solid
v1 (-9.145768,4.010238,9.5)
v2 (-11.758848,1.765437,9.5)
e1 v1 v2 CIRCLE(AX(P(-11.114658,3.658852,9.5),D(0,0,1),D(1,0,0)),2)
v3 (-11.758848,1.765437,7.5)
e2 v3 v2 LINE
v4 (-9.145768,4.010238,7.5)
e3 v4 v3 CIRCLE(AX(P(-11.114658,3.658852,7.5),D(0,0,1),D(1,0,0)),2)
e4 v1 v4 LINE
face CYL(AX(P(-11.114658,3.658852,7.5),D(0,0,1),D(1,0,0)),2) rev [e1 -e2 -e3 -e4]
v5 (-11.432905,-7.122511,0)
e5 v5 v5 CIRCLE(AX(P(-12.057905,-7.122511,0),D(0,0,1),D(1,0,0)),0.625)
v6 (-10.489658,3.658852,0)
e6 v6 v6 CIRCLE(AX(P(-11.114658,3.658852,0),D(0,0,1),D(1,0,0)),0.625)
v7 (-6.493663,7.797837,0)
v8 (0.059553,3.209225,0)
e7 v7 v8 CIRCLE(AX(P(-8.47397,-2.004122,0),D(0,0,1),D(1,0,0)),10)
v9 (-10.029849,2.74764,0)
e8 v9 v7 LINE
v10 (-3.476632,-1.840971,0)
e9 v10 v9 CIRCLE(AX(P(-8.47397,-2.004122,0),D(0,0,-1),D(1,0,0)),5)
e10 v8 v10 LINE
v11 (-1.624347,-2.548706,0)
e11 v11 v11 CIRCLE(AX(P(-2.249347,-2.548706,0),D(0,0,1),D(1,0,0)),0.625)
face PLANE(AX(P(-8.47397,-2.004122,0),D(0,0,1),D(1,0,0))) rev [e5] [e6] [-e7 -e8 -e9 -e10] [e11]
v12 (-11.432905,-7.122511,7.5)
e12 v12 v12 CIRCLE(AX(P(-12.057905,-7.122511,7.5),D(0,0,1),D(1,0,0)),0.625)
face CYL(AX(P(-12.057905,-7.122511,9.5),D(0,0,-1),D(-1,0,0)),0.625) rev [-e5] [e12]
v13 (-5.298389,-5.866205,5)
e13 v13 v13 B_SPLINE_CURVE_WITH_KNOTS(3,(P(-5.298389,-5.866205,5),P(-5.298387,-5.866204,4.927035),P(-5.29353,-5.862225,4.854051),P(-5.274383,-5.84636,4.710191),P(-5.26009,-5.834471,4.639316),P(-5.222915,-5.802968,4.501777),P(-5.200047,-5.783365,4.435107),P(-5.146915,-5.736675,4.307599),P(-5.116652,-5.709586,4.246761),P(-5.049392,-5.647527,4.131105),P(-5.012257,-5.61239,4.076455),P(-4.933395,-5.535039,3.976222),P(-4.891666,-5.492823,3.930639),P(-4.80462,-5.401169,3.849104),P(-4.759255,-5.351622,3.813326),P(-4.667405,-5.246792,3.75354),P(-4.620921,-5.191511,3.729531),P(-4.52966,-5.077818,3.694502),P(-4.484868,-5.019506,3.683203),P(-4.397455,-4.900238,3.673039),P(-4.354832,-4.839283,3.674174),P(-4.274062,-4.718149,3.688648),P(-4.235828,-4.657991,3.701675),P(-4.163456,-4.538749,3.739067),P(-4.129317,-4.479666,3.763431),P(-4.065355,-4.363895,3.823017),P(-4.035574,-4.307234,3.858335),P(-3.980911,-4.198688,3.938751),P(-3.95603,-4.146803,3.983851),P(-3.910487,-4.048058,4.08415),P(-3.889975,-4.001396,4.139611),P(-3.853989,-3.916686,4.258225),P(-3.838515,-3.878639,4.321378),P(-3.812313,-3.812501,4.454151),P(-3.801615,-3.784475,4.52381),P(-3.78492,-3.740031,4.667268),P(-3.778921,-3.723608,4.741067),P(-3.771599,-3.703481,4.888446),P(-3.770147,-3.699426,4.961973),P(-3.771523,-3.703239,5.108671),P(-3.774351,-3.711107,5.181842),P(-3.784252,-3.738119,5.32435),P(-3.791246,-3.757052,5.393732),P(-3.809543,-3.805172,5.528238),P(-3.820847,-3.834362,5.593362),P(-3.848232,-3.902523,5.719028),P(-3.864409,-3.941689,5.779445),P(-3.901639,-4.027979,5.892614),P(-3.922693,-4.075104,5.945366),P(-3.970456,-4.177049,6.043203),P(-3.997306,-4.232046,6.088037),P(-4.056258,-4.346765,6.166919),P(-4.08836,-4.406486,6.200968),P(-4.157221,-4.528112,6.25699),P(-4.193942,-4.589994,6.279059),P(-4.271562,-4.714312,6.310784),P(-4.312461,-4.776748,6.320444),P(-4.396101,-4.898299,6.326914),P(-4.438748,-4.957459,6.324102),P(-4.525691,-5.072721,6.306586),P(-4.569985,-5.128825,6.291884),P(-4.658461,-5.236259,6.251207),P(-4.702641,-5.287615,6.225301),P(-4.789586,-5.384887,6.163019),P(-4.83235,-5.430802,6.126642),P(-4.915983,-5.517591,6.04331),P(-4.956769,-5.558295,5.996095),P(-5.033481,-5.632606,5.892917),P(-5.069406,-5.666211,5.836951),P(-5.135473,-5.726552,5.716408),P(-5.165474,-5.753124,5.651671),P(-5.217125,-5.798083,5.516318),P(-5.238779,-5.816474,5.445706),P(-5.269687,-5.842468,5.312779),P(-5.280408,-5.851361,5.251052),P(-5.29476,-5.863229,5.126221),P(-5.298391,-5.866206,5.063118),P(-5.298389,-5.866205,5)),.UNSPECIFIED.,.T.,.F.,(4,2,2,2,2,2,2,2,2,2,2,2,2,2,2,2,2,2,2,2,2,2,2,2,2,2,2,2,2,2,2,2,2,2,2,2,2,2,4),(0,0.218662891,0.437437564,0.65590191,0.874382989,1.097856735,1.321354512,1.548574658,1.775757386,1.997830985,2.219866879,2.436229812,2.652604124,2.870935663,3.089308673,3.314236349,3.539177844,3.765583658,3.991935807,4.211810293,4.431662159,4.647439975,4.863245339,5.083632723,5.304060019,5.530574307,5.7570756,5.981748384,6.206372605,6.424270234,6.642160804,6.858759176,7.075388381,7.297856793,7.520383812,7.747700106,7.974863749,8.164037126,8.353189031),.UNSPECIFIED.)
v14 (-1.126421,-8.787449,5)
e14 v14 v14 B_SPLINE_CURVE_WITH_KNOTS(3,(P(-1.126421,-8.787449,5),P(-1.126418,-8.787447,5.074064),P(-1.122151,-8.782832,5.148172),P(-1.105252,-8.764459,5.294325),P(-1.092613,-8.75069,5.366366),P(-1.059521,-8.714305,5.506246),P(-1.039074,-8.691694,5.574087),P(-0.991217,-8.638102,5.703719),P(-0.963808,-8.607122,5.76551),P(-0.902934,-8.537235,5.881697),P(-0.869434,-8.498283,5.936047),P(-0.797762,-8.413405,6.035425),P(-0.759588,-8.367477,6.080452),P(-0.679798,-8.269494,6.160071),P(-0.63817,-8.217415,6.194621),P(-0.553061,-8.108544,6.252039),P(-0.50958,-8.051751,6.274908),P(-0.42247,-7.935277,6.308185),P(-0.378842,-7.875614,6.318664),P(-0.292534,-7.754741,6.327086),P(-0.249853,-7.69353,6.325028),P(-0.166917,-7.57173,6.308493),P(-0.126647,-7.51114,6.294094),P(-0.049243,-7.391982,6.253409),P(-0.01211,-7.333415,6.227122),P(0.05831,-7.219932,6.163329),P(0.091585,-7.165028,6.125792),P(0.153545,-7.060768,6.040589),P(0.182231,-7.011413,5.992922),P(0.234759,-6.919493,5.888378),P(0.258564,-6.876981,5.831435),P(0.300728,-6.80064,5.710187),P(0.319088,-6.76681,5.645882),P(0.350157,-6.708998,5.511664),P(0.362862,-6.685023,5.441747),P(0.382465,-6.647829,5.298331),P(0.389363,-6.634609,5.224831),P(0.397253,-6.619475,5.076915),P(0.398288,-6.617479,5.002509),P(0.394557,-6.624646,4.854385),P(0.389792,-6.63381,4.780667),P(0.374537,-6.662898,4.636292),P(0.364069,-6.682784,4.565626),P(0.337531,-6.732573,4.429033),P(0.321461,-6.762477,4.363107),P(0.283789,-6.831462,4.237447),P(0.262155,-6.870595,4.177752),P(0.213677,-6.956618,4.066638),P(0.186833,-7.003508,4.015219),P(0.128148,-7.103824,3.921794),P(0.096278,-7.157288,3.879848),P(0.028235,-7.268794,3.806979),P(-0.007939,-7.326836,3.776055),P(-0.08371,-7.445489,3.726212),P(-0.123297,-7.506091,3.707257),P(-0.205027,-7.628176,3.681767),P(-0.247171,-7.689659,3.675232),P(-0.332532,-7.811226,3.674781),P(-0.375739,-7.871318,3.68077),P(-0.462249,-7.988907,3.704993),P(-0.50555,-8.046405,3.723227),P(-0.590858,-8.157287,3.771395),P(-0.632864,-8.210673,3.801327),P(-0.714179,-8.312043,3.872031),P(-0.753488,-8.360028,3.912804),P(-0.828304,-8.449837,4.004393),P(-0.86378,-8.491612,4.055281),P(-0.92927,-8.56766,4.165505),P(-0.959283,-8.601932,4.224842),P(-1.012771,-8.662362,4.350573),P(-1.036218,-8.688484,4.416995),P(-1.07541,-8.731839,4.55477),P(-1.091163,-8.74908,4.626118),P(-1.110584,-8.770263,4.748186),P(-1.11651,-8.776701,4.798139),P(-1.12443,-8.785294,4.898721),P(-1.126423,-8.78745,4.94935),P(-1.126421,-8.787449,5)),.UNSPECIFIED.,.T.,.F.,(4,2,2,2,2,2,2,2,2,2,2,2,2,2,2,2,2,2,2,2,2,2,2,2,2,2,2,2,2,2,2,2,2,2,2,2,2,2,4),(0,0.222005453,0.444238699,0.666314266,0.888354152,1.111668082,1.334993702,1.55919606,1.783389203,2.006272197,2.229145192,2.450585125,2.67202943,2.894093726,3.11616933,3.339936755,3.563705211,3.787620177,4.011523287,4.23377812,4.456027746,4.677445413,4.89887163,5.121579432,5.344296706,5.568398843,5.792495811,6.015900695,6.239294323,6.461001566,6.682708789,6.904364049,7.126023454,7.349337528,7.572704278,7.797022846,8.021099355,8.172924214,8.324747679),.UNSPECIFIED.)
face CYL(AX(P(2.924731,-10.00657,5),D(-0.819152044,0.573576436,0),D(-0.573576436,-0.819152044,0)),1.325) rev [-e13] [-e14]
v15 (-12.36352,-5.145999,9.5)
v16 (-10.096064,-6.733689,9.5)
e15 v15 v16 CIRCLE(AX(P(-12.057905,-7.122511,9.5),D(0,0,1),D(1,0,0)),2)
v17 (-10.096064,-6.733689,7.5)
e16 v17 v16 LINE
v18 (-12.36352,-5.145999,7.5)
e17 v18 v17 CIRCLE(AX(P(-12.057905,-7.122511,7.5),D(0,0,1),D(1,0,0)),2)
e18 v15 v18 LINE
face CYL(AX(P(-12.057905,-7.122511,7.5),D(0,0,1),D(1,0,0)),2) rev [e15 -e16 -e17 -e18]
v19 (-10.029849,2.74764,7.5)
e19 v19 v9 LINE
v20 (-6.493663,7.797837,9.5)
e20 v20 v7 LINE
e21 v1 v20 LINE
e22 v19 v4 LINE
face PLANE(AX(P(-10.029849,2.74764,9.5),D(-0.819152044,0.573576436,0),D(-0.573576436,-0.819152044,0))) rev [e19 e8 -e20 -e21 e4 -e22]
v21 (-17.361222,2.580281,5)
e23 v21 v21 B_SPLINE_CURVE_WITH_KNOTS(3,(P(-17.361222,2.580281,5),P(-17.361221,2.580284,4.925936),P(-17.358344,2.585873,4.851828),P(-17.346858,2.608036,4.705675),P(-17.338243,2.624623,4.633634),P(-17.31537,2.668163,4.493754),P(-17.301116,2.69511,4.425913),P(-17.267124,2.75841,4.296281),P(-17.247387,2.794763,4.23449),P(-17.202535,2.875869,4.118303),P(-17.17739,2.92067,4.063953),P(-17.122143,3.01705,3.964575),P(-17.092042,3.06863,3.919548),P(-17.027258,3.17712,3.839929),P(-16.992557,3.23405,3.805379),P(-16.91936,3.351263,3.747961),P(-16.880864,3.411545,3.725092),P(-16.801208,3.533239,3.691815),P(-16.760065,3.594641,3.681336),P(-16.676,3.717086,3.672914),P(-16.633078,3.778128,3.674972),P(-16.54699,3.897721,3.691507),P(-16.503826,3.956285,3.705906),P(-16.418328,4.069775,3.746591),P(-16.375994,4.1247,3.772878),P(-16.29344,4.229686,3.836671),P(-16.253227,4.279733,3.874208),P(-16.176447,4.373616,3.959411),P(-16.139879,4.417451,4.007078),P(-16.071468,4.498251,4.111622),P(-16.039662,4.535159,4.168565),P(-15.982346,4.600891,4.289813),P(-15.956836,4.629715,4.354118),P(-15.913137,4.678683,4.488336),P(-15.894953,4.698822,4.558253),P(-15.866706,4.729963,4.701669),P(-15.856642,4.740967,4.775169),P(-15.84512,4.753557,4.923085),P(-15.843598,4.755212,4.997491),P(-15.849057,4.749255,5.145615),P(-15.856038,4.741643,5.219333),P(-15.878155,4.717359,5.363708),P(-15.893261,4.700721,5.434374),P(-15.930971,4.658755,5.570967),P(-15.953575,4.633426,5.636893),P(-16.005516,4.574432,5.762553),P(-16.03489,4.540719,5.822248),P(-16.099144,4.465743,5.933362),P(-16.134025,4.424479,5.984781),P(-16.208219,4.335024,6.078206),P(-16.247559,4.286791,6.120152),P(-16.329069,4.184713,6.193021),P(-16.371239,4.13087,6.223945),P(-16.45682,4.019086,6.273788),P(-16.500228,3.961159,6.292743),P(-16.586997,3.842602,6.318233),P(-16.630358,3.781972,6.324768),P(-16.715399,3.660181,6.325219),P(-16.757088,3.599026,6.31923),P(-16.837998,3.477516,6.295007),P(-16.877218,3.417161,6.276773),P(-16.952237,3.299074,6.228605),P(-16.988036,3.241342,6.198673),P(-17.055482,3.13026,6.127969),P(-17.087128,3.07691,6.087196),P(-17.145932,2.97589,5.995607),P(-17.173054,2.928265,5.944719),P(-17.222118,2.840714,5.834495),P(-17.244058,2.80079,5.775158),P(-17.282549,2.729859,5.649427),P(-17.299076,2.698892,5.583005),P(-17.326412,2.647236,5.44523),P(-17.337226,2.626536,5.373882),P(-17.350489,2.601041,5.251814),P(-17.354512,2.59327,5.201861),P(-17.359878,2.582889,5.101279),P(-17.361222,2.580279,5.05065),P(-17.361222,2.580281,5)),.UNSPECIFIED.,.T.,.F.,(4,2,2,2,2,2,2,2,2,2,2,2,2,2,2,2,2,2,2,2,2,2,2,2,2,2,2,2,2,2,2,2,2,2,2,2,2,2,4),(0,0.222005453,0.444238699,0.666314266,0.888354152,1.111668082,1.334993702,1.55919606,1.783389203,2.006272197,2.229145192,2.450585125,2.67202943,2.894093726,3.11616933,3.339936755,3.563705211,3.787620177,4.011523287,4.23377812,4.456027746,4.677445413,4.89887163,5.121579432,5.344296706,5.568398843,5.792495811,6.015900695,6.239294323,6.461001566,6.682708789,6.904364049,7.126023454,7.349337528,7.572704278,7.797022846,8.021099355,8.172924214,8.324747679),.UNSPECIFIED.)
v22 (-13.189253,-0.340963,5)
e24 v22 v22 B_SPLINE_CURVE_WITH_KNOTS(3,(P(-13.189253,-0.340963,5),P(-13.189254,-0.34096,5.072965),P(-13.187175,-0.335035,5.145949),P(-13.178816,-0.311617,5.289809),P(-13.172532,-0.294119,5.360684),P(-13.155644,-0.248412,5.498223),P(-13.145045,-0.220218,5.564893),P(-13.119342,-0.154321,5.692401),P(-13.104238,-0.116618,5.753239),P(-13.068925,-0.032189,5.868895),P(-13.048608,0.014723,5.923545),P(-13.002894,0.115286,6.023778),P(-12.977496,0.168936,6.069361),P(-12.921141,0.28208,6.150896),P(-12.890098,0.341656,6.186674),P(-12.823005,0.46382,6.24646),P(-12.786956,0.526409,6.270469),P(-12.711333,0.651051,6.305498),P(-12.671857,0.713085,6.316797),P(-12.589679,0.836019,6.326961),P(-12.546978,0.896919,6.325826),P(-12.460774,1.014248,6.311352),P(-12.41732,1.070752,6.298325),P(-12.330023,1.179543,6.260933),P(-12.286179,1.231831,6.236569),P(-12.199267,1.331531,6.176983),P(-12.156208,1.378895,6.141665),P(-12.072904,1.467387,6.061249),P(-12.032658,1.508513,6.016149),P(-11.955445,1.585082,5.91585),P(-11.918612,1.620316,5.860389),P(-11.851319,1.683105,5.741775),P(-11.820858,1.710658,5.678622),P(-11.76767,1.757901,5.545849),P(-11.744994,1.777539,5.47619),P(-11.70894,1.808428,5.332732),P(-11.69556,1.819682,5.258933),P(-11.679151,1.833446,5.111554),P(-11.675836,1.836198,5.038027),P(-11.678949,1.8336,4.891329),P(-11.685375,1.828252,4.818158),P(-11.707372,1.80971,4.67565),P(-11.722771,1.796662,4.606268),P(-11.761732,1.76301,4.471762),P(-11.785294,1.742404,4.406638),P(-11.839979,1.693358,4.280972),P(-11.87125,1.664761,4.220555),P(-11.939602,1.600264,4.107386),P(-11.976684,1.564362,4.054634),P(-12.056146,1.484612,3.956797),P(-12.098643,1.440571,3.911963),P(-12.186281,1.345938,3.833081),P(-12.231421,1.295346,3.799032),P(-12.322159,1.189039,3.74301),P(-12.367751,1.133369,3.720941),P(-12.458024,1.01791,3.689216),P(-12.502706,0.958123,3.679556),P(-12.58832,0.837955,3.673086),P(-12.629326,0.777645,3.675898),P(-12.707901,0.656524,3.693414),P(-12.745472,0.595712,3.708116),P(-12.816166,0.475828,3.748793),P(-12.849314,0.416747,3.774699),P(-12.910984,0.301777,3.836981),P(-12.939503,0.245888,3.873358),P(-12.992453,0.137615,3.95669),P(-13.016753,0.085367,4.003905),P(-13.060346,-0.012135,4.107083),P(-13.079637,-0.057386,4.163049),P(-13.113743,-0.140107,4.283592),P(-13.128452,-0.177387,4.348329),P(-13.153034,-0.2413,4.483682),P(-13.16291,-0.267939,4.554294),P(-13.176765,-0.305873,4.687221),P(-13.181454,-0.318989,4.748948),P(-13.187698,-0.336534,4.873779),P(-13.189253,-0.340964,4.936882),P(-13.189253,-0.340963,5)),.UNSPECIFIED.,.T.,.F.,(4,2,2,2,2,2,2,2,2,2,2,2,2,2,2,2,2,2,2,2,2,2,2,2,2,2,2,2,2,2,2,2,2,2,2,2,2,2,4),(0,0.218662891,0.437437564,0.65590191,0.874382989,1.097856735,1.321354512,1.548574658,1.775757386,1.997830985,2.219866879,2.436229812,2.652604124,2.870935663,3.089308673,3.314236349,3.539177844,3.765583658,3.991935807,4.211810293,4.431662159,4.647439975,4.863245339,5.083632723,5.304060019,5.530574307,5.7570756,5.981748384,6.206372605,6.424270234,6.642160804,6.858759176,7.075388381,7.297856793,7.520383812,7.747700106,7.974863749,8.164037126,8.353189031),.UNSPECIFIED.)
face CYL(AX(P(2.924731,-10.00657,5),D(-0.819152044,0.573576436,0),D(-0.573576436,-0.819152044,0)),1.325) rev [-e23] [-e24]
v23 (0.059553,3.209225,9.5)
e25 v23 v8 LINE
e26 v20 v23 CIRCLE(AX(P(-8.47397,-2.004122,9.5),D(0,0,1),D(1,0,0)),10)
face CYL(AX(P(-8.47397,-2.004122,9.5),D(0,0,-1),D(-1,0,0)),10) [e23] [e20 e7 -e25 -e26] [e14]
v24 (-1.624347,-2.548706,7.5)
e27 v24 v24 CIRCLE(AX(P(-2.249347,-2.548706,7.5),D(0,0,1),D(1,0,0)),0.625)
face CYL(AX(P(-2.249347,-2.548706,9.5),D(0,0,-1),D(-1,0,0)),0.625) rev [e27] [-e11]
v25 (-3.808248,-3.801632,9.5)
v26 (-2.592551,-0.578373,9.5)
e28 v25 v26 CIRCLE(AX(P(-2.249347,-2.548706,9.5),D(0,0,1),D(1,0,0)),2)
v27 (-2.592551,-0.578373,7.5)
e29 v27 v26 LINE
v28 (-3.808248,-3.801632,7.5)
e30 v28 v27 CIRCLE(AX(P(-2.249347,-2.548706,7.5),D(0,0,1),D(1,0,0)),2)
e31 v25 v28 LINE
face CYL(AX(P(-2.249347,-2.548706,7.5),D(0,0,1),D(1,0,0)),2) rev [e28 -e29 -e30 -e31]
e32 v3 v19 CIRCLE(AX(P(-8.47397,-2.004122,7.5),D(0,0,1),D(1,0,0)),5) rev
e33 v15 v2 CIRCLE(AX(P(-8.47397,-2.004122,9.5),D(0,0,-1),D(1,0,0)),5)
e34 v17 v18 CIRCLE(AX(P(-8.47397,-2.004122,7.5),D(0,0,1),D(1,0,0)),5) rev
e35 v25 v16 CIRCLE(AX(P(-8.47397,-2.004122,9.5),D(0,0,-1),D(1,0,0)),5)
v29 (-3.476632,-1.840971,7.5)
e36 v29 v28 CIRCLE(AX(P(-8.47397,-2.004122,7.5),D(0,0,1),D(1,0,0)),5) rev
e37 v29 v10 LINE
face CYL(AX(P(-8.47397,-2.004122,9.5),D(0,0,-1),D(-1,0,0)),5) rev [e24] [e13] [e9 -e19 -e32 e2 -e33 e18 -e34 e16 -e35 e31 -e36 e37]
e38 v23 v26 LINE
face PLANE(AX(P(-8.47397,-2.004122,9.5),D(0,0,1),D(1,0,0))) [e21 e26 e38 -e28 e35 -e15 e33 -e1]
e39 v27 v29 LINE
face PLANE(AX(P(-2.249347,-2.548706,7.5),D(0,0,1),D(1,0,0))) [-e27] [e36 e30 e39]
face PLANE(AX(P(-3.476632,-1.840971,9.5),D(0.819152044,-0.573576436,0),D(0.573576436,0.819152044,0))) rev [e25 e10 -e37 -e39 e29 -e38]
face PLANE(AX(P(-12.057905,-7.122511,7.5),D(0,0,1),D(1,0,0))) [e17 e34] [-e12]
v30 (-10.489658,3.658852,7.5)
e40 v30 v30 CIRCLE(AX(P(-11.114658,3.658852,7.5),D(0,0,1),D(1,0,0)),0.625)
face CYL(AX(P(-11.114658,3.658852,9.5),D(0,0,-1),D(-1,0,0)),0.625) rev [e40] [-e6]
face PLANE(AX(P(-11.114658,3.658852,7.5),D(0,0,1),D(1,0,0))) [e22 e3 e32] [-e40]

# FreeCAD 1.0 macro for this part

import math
import FreeCAD as App
import Part
import Sketcher
from FreeCAD import Vector
Q = App.Units.Quantity

doc = App.newDocument("Part")
body = doc.addObject("PartDesign::Body", "Body")

# Sketch on XY plane
sketch1 = body.newObject("Sketcher::SketchObject", "Sketch")
sketch1.AttachmentSupport = (doc.getObject("XY_Plane"), [""])
sketch1.MapMode = "FlatFace"
sketch1.addGeometry([
    Part.LineSegment(Vector(-10, 2.7, 0), Vector(-6.5, 7.8, 0)),  # 0
    Part.ArcOfCircle(Part.Circle(Vector(-8.5, -2, 0), Vector(0, 0, 1), 10), math.radians(79), math.radians(391)),  # 1
    Part.LineSegment(Vector(0.1, 3.2, 0), Vector(-3.5, -1.8, 0)),  # 2
    Part.ArcOfCircle(Part.Circle(Vector(-8.5, -2, 0), Vector(0, 0, 1), 5), math.radians(108), math.radians(362)),  # 3
    Part.Circle(Vector(-12.1, -7.1, 0), Vector(0, 0, 1), 0.6),  # 4
    Part.Circle(Vector(-2.2, -2.5, 0), Vector(0, 0, 1), 0.6),  # 5
    Part.Circle(Vector(-11.1, 3.7, 0), Vector(0, 0, 1), 0.6),  # 6
], False)
sketch1.addConstraint([
    Sketcher.Constraint("Coincident", 0, 2, 1, 1),
    Sketcher.Constraint("Coincident", 1, 2, 2, 1),
    Sketcher.Constraint("Coincident", 2, 2, 3, 2),
    Sketcher.Constraint("Coincident", 3, 1, 0, 1),
    Sketcher.Constraint("Coincident", 3, 3, 1, 3),
    Sketcher.Constraint("Equal", 4, 5),
    Sketcher.Constraint("Equal", 5, 6),
    Sketcher.Constraint("Parallel", 0, 2),
    Sketcher.Constraint("Equal", 0, 2),
    Sketcher.Constraint("Radius", 1, 10.0),
    Sketcher.Constraint("Radius", 3, 5.0),
    Sketcher.Constraint("Diameter", 4, 1.25),
    Sketcher.Constraint("Angle", 0, Q("55 deg")),
    Sketcher.Constraint("DistanceX", 5, 3, 1, 2, 2.3089),
    Sketcher.Constraint("Distance", 0, 6.165151),
    Sketcher.Constraint("DistanceX", 1, 3, -1, 1, 8.47397),
    Sketcher.Constraint("DistanceY", 1, 3, -1, 1, 2.004122),
    Sketcher.Constraint("DistanceY", 4, 3, -1, 1, 7.122511),
    Sketcher.Constraint("DistanceY", -1, 1, 6, 3, 3.658852),
    Sketcher.Constraint("DistanceX", 6, 3, 5, 3, 8.865311),
    Sketcher.Constraint("DistanceX", 4, 3, 0, 2, 5.564242),
    Sketcher.Constraint("DistanceY", 5, 3, 1, 2, 5.757931),
])
pad1 = body.newObject("PartDesign::Pad", "Pad")
pad1.Profile = sketch1
pad1.Length = 9.5

# Sketch on an angled plane
sketch2 = body.newObject("Sketcher::SketchObject", "Sketch001")
sketch2.Placement = App.Placement(Vector(-12.93601, 9.057892, 0), App.Rotation(Vector(0, 0, 1), Vector(0.573576436, 0.819152044, 0), Vector(-0.819152044, 0.573576436, 0), "ZXY"))
sketch2.addGeometry(Part.Circle(Vector(5, -6.5, 0), Vector(0, 0, 1), 1.3), False)
sketch2.addConstraint([
    Sketcher.Constraint("Diameter", 0, 2.65),
    Sketcher.Constraint("DistanceX", -1, 1, 0, 3, 5.0),
    Sketcher.Constraint("DistanceY", 0, 3, -1, 1, 6.519345),
])
pocket1 = body.newObject("PartDesign::Pocket", "Pocket")
pocket1.Profile = sketch2
pocket1.Type = "ThroughAll"
pocket1.Midplane = True

# Sketch on XY plane
sketch3 = body.newObject("Sketcher::SketchObject", "Sketch002")
sketch3.AttachmentSupport = (doc.getObject("XY_Plane"), [""])
sketch3.MapMode = "FlatFace"
sketch3.AttachmentOffset = App.Placement(Vector(0, 0, 9.5), App.Rotation())
sketch3.addGeometry([
    Part.Circle(Vector(-11.1, 3.7, 0), Vector(0, 0, 1), 2),
    Part.Circle(Vector(-12.1, -7.1, 0), Vector(0, 0, 1), 2),
    Part.Circle(Vector(-2.2, -2.5, 0), Vector(0, 0, 1), 2),
], False)
sketch3.addConstraint([
    Sketcher.Constraint("Equal", 0, 1),
    Sketcher.Constraint("Equal", 1, 2),
    Sketcher.Constraint("Diameter", 0, 4.0),
    Sketcher.Constraint("DistanceY", -1, 1, 0, 3, 3.658852),
    Sketcher.Constraint("DistanceY", 1, 3, -1, 1, 7.122511),
    Sketcher.Constraint("DistanceX", 0, 3, 2, 3, 8.865311),
    Sketcher.Constraint("DistanceX", 0, 3, -1, 1, 11.114658),
    Sketcher.Constraint("DistanceX", 1, 3, -1, 1, 12.057905),
    Sketcher.Constraint("DistanceY", 2, 3, -1, 1, 2.548706),
])
pocket2 = body.newObject("PartDesign::Pocket", "Pocket001")
pocket2.Profile = sketch3
pocket2.Length = 2

doc.recompute()
